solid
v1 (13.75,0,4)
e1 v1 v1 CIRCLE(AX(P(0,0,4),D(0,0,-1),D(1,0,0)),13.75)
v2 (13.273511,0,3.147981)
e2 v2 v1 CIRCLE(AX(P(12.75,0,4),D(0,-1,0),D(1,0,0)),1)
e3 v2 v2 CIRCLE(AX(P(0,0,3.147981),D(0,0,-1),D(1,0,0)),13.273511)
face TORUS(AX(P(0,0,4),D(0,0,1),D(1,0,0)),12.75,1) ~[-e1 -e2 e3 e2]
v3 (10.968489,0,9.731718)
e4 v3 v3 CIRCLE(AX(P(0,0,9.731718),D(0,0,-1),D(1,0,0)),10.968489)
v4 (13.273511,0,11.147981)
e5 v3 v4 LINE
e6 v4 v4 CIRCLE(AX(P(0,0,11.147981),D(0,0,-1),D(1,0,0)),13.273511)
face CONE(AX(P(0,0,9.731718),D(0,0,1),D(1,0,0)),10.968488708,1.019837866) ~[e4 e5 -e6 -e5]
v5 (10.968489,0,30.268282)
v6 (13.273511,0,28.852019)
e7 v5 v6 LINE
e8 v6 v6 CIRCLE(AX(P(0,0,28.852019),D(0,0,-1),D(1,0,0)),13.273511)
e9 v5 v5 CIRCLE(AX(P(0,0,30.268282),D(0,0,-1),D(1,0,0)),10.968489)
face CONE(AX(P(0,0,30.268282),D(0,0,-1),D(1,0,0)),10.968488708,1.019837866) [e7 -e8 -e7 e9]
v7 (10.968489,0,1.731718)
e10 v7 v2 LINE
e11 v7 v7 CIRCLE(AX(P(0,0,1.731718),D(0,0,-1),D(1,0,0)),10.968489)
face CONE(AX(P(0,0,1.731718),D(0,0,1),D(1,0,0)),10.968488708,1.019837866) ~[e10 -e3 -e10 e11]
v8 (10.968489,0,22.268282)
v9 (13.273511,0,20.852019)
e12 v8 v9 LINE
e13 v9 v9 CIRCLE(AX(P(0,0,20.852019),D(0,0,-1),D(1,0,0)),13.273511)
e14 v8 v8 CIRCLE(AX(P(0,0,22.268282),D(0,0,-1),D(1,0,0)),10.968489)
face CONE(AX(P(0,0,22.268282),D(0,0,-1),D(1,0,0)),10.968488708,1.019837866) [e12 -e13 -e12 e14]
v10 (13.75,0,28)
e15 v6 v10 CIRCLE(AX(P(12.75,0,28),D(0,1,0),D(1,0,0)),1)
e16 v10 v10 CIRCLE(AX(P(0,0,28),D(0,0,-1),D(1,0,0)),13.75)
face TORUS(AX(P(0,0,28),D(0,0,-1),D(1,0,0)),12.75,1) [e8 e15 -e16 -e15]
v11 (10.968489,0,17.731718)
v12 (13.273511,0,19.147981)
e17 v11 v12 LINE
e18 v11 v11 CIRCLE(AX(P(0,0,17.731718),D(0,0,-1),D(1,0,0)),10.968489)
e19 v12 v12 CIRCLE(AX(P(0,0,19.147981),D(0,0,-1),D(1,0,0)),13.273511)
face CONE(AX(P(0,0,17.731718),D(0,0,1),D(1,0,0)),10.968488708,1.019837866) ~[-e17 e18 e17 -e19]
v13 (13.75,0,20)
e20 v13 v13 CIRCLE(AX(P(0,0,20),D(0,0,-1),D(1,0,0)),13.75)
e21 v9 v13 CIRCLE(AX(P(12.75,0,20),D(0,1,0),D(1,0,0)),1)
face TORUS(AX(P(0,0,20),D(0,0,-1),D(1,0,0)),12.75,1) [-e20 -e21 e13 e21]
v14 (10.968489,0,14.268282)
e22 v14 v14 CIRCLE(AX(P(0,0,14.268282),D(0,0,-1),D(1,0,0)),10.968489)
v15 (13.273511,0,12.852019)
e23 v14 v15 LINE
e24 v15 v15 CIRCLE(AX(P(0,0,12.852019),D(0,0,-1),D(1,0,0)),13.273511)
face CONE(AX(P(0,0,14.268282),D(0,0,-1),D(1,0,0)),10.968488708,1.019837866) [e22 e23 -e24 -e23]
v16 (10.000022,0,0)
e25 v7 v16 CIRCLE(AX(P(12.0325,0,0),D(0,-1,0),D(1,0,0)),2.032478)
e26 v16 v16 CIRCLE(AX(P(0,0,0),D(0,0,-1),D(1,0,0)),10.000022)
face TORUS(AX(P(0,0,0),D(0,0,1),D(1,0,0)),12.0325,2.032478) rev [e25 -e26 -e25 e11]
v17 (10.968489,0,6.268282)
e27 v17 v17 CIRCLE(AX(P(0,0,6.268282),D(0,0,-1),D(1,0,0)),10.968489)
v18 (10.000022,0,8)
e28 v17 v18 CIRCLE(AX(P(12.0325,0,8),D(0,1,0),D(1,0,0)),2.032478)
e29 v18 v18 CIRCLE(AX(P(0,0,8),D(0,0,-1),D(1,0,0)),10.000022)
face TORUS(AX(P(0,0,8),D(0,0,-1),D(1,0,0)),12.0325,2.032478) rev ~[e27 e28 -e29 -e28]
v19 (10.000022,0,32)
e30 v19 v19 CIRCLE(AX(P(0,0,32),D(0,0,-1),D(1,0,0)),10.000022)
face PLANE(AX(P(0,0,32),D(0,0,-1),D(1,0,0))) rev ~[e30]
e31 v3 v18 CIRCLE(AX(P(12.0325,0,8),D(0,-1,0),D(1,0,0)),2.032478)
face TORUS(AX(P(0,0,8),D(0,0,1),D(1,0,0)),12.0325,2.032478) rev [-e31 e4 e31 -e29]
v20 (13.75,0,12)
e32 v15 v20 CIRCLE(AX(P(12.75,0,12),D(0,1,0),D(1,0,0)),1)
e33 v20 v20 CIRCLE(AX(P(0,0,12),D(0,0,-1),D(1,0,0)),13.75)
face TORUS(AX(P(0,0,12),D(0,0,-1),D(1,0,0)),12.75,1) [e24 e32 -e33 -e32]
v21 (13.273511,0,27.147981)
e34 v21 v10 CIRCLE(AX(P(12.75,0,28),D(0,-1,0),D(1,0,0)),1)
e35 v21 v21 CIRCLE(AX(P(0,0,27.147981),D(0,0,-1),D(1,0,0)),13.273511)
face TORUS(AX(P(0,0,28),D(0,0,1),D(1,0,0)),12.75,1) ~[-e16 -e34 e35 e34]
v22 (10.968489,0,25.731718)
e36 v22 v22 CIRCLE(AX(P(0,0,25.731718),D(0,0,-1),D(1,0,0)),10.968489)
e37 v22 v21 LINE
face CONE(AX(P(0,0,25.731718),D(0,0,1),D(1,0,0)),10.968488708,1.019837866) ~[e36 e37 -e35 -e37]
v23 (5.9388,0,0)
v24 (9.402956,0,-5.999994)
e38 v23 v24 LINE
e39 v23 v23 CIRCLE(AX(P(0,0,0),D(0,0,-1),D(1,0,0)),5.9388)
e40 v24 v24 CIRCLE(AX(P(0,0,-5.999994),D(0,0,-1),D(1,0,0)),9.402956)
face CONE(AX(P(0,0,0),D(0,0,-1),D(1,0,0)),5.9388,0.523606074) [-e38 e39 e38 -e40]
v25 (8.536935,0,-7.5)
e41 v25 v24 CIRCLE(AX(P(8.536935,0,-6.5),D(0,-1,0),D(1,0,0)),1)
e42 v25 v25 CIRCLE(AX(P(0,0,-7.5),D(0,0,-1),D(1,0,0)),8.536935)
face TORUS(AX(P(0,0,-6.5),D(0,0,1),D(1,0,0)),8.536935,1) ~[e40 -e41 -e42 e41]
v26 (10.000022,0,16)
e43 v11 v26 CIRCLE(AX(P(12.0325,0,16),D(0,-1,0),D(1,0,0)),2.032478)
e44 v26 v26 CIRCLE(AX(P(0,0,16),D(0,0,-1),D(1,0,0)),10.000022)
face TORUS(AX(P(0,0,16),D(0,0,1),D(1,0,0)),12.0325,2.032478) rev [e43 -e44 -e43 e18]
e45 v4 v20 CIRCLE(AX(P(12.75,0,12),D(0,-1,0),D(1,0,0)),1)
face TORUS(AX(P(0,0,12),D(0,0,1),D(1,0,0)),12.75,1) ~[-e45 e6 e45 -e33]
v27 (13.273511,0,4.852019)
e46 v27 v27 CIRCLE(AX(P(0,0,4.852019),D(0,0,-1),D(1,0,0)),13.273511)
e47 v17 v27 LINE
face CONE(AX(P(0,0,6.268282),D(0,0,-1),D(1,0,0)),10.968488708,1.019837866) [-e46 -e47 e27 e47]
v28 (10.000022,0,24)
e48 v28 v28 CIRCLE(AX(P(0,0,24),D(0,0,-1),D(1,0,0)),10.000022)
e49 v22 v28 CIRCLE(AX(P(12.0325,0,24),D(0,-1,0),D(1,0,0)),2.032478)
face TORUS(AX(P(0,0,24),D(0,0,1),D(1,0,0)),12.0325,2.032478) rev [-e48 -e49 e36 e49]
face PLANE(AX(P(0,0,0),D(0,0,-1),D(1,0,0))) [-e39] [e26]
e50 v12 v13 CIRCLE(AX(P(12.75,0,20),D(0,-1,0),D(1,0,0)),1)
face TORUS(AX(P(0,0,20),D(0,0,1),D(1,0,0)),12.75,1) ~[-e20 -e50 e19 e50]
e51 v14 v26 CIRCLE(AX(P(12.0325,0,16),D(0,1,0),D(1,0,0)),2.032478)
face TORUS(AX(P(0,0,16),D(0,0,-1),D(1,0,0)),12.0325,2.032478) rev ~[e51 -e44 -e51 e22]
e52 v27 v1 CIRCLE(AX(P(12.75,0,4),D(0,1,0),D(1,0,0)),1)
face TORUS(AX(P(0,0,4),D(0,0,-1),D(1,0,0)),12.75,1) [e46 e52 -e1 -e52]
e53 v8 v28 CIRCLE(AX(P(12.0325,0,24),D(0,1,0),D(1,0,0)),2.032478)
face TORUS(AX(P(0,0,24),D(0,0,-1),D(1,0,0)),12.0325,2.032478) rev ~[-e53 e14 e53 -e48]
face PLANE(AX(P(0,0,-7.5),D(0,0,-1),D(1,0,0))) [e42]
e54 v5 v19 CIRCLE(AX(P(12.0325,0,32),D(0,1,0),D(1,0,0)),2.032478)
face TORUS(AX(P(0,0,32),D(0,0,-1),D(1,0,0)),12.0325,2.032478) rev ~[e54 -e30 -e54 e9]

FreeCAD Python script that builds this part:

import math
import FreeCAD as App
import Part
import Sketcher
from FreeCAD import Vector
Q = App.Units.Quantity


def edges_at(feature, points):
    """Names of the edges that pass closest to the given points."""
    edges = feature.Shape.Edges
    near = lambda p: min(range(len(edges)), key=lambda i: edges[i].distToShape(Part.Vertex(*p))[0])
    return sorted({f"Edge{near(p) + 1}" for p in points})

doc = App.newDocument("Part")
body = doc.addObject("PartDesign::Body", "Body")

# Sketch on XZ plane
sketch1 = doc.addObject("Sketcher::SketchObject", "Sketch")
body.addObject(sketch1)
sketch1.AttachmentSupport = (doc.XZ_Plane, [""])
sketch1.MapMode = "FlatFace"
sketch1.addGeometry(Part.ArcOfCircle(Part.Circle(Vector(12, 32, 0), Vector(0, 0, 1), 2), math.radians(180), math.radians(238)), False)
sketch1.addGeometry(Part.LineSegment(Vector(10, 32, 0), Vector(0, 32, 0)), False)
sketch1.addGeometry(Part.LineSegment(Vector(0, 32, 0), Vector(0, -7.5, 0)), False)
sketch1.addGeometry(Part.LineSegment(Vector(0, -7.5, 0), Vector(10.3, -7.5, 0)), False)
sketch1.addGeometry(Part.LineSegment(Vector(10.3, -7.5, 0), Vector(5.9, 0, 0)), False)
sketch1.addGeometry(Part.LineSegment(Vector(5.9, 0, 0), Vector(10, 0, 0)), False)
sketch1.addGeometry(Part.ArcOfCircle(Part.Circle(Vector(12, 0, 0), Vector(0, 0, 1), 2), math.radians(122), math.radians(180)), False)
sketch1.addGeometry(Part.LineSegment(Vector(11, 1.7, 0), Vector(13.3, 3.1, 0)), False)
sketch1.addGeometry(Part.ArcOfCircle(Part.Circle(Vector(12.8, 4, 0), Vector(0, 0, 1), 1), math.radians(-58), math.radians(0)), False)
sketch1.addGeometry(Part.ArcOfCircle(Part.Circle(Vector(12.8, 4, 0), Vector(0, 0, 1), 1), math.radians(0), math.radians(58)), False)
sketch1.addGeometry(Part.LineSegment(Vector(13.3, 4.9, 0), Vector(11, 6.3, 0)), False)
sketch1.addGeometry(Part.ArcOfCircle(Part.Circle(Vector(12, 8, 0), Vector(0, 0, 1), 2), math.radians(180), math.radians(238)), False)
sketch1.addGeometry(Part.ArcOfCircle(Part.Circle(Vector(12, 8, 0), Vector(0, 0, 1), 2), math.radians(122), math.radians(180)), False)
sketch1.addGeometry(Part.LineSegment(Vector(11, 9.7, 0), Vector(13.3, 11.1, 0)), False)
sketch1.addGeometry(Part.ArcOfCircle(Part.Circle(Vector(12.8, 12, 0), Vector(0, 0, 1), 1), math.radians(-58), math.radians(0)), False)
sketch1.addGeometry(Part.ArcOfCircle(Part.Circle(Vector(12.8, 12, 0), Vector(0, 0, 1), 1), math.radians(0), math.radians(58)), False)
sketch1.addGeometry(Part.LineSegment(Vector(13.3, 12.9, 0), Vector(11, 14.3, 0)), False)
sketch1.addGeometry(Part.ArcOfCircle(Part.Circle(Vector(12, 16, 0), Vector(0, 0, 1), 2), math.radians(180), math.radians(238)), False)
sketch1.addGeometry(Part.ArcOfCircle(Part.Circle(Vector(12, 16, 0), Vector(0, 0, 1), 2), math.radians(122), math.radians(180)), False)
sketch1.addGeometry(Part.LineSegment(Vector(11, 17.7, 0), Vector(13.3, 19.1, 0)), False)
sketch1.addGeometry(Part.ArcOfCircle(Part.Circle(Vector(12.8, 20, 0), Vector(0, 0, 1), 1), math.radians(-58), math.radians(0)), False)
sketch1.addGeometry(Part.ArcOfCircle(Part.Circle(Vector(12.8, 20, 0), Vector(0, 0, 1), 1), math.radians(0), math.radians(58)), False)
sketch1.addGeometry(Part.LineSegment(Vector(13.3, 20.9, 0), Vector(11, 22.3, 0)), False)
sketch1.addGeometry(Part.ArcOfCircle(Part.Circle(Vector(12, 24, 0), Vector(0, 0, 1), 2), math.radians(180), math.radians(238)), False)
sketch1.addGeometry(Part.ArcOfCircle(Part.Circle(Vector(12, 24, 0), Vector(0, 0, 1), 2), math.radians(122), math.radians(180)), False)
sketch1.addGeometry(Part.LineSegment(Vector(11, 25.7, 0), Vector(13.3, 27.1, 0)), False)
sketch1.addGeometry(Part.ArcOfCircle(Part.Circle(Vector(12.8, 28, 0), Vector(0, 0, 1), 1), math.radians(-58), math.radians(0)), False)
sketch1.addGeometry(Part.ArcOfCircle(Part.Circle(Vector(12.8, 28, 0), Vector(0, 0, 1), 1), math.radians(0), math.radians(58)), False)
sketch1.addGeometry(Part.LineSegment(Vector(13.3, 28.9, 0), Vector(11, 30.3, 0)), False)
sketch1.addConstraint(Sketcher.Constraint("Coincident", 0, 1, 1, 1))
sketch1.addConstraint(Sketcher.Constraint("Coincident", 1, 2, 2, 1))
sketch1.addConstraint(Sketcher.Constraint("Coincident", 2, 2, 3, 1))
sketch1.addConstraint(Sketcher.Constraint("Coincident", 3, 2, 4, 1))
sketch1.addConstraint(Sketcher.Constraint("Coincident", 4, 2, 5, 1))
sketch1.addConstraint(Sketcher.Constraint("Coincident", 5, 2, 6, 2))
sketch1.addConstraint(Sketcher.Constraint("Tangent", 6, 1, 7, 1))
sketch1.addConstraint(Sketcher.Constraint("Tangent", 7, 2, 8, 1))
sketch1.addConstraint(Sketcher.Constraint("Tangent", 8, 2, 9, 1))
sketch1.addConstraint(Sketcher.Constraint("Tangent", 9, 2, 10, 1))
sketch1.addConstraint(Sketcher.Constraint("Tangent", 10, 2, 11, 2))
sketch1.addConstraint(Sketcher.Constraint("Tangent", 11, 1, 12, 2))
sketch1.addConstraint(Sketcher.Constraint("Tangent", 12, 1, 13, 1))
sketch1.addConstraint(Sketcher.Constraint("Tangent", 13, 2, 14, 1))
sketch1.addConstraint(Sketcher.Constraint("Tangent", 14, 2, 15, 1))
sketch1.addConstraint(Sketcher.Constraint("Tangent", 15, 2, 16, 1))
sketch1.addConstraint(Sketcher.Constraint("Tangent", 16, 2, 17, 2))
sketch1.addConstraint(Sketcher.Constraint("Tangent", 17, 1, 18, 2))
sketch1.addConstraint(Sketcher.Constraint("Tangent", 18, 1, 19, 1))
sketch1.addConstraint(Sketcher.Constraint("Tangent", 19, 2, 20, 1))
sketch1.addConstraint(Sketcher.Constraint("Tangent", 20, 2, 21, 1))
sketch1.addConstraint(Sketcher.Constraint("Tangent", 21, 2, 22, 1))
sketch1.addConstraint(Sketcher.Constraint("Tangent", 22, 2, 23, 2))
sketch1.addConstraint(Sketcher.Constraint("Tangent", 23, 1, 24, 2))
sketch1.addConstraint(Sketcher.Constraint("Tangent", 24, 1, 25, 1))
sketch1.addConstraint(Sketcher.Constraint("Tangent", 25, 2, 26, 1))
sketch1.addConstraint(Sketcher.Constraint("Tangent", 26, 2, 27, 1))
sketch1.addConstraint(Sketcher.Constraint("Tangent", 27, 2, 28, 1))
sketch1.addConstraint(Sketcher.Constraint("Tangent", 28, 2, 0, 2))
sketch1.addConstraint(Sketcher.Constraint("Horizontal", 1))
sketch1.addConstraint(Sketcher.Constraint("Vertical", 2))
sketch1.addConstraint(Sketcher.Constraint("Horizontal", 3))
sketch1.addConstraint(Sketcher.Constraint("Horizontal", 5))
sketch1.addConstraint(Sketcher.Constraint("Equal", 0, 6))
sketch1.addConstraint(Sketcher.Constraint("Equal", 8, 9))
sketch1.addConstraint(Sketcher.Constraint("Equal", 6, 11))
sketch1.addConstraint(Sketcher.Constraint("Equal", 11, 12))
sketch1.addConstraint(Sketcher.Constraint("Equal", 9, 14))
sketch1.addConstraint(Sketcher.Constraint("Equal", 14, 15))
sketch1.addConstraint(Sketcher.Constraint("Equal", 12, 17))
sketch1.addConstraint(Sketcher.Constraint("Equal", 17, 18))
sketch1.addConstraint(Sketcher.Constraint("Equal", 15, 20))
sketch1.addConstraint(Sketcher.Constraint("Equal", 20, 21))
sketch1.addConstraint(Sketcher.Constraint("Equal", 18, 23))
sketch1.addConstraint(Sketcher.Constraint("Equal", 23, 24))
sketch1.addConstraint(Sketcher.Constraint("Equal", 21, 26))
sketch1.addConstraint(Sketcher.Constraint("Equal", 26, 27))
sketch1.addConstraint(Sketcher.Constraint("PointOnObject", 6, 3, -1))
sketch1.addConstraint(Sketcher.Constraint("PointOnObject", 1, 2, -2))
sketch1.addConstraint(Sketcher.Constraint("PointOnObject", 4, 2, -1))
sketch1.addConstraint(Sketcher.Constraint("Parallel", 7, 13))
sketch1.addConstraint(Sketcher.Constraint("Parallel", 10, 16))
sketch1.addConstraint(Sketcher.Constraint("Parallel", 13, 19))
sketch1.addConstraint(Sketcher.Constraint("Parallel", 16, 22))
sketch1.addConstraint(Sketcher.Constraint("Parallel", 19, 25))
sketch1.addConstraint(Sketcher.Constraint("Parallel", 22, 28))
sketch1.addConstraint(Sketcher.Constraint("Horizontal", 9, 3, 8, 2))
sketch1.addConstraint(Sketcher.Constraint("Horizontal", 12, 3, 11, 1))
sketch1.addConstraint(Sketcher.Constraint("Horizontal", 15, 3, 14, 2))
sketch1.addConstraint(Sketcher.Constraint("Horizontal", 18, 3, 17, 1))
sketch1.addConstraint(Sketcher.Constraint("Horizontal", 21, 3, 20, 2))
sketch1.addConstraint(Sketcher.Constraint("Horizontal", 24, 3, 23, 1))
sketch1.addConstraint(Sketcher.Constraint("Horizontal", 27, 3, 26, 2))
sketch1.addConstraint(Sketcher.Constraint("Vertical", 0, 3, 6, 3))
sketch1.addConstraint(Sketcher.Constraint("Vertical", 6, 3, 11, 3))
sketch1.addConstraint(Sketcher.Constraint("Vertical", 9, 3, 14, 3))
sketch1.addConstraint(Sketcher.Constraint("Vertical", 12, 3, 17, 3))
sketch1.addConstraint(Sketcher.Constraint("Vertical", 15, 3, 20, 3))
sketch1.addConstraint(Sketcher.Constraint("Vertical", 18, 3, 23, 3))
sketch1.addConstraint(Sketcher.Constraint("Vertical", 21, 3, 26, 3))
sketch1.addConstraint(Sketcher.Constraint("Vertical", 7, 2, 9, 2))
sketch1.addConstraint(Sketcher.Constraint("Radius", 8, Q("1 mm")))
sketch1.addConstraint(Sketcher.Constraint("DistanceX", 1, 2, 1, 1, Q("10 mm")))
sketch1.addConstraint(Sketcher.Constraint("Angle", 4, Q("120.0004 deg")))
sketch1.addConstraint(Sketcher.Constraint("DistanceY", 2, 2, 2, 1, Q("39.5 mm")))
sketch1.addConstraint(Sketcher.Constraint("DistanceY", -1, 1, 0, 3, Q("32 mm")))
sketch1.addConstraint(Sketcher.Constraint("DistanceY", -1, 1, 0, 1, Q("32 mm")))
sketch1.addConstraint(Sketcher.Constraint("Radius", 0, Q("2.0325 mm")))
sketch1.addConstraint(Sketcher.Constraint("DistanceX", 3, 1, 3, 2, Q("10.269 mm")))
sketch1.addConstraint(Sketcher.Constraint("DistanceX", -1, 1, 8, 3, Q("12.75 mm")))
revolution = doc.addObject("PartDesign::Revolution", "Revolution")
body.addObject(revolution)
revolution.Profile = sketch1
revolution.ReferenceAxis = (sketch1, ["V_Axis"])
revolution.Angle = 360
doc.recompute()

fillet = doc.addObject("PartDesign::Fillet", "Fillet")
body.addObject(fillet)
fillet.Base = (revolution, edges_at(revolution, [(-10.269, 0, -7.5)]))
fillet.Radius = 1

doc.recompute()
